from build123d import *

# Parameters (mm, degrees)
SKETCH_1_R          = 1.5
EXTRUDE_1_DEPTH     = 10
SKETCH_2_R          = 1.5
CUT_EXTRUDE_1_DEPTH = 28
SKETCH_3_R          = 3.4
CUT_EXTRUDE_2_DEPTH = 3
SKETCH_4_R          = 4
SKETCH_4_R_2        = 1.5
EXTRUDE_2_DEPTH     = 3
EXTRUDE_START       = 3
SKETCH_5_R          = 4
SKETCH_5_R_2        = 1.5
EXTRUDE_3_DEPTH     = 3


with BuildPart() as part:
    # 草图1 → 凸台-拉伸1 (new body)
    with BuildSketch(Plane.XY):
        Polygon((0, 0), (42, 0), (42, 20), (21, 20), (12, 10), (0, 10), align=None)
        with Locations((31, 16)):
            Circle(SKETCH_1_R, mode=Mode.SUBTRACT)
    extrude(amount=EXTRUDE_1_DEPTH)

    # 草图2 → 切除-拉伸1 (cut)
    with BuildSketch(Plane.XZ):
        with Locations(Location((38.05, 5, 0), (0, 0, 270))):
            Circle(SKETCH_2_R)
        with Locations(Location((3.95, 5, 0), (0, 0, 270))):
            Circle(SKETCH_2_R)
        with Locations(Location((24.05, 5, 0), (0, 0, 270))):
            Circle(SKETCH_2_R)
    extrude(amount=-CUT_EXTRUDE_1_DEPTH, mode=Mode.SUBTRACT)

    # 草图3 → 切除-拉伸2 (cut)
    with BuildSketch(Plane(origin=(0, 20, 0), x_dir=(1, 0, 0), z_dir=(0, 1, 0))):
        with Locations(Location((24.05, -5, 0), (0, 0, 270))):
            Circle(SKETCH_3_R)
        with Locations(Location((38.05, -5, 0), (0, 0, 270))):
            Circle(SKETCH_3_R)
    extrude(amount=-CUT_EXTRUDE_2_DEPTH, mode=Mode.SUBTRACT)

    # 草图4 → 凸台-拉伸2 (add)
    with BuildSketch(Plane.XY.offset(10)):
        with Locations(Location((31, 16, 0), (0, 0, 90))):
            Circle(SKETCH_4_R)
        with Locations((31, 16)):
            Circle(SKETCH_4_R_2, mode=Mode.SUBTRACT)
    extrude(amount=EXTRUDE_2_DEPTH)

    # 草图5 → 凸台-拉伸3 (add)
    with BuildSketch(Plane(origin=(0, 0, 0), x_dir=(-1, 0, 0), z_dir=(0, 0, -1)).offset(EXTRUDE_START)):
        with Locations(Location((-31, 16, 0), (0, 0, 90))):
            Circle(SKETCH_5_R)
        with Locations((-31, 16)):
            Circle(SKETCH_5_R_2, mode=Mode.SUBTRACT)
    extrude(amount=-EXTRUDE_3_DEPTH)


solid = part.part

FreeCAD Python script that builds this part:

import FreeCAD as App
import Part
import Sketcher

V = App.Vector
Q = App.Units.Quantity


def add_polygon(sketch, points):
    """Adds a closed chain of lines whose ends are joined by coincident constraints."""
    first, n = sketch.GeometryCount, len(points)
    for a, b in zip(points, points[1:] + points[:1]):
        sketch.addGeometry(Part.LineSegment(App.Vector(*a, 0), App.Vector(*b, 0)), False)
    for i in range(n):
        sketch.addConstraint(Sketcher.Constraint("Coincident", first + i, 2, first + (i + 1) % n, 1))

doc = App.newDocument("Part")
body = doc.addObject("PartDesign::Body", "Body")

sketch1 = doc.addObject("Sketcher::SketchObject", "Sketch")
body.addObject(sketch1)
sketch1.AttachmentSupport = (doc.XY_Plane, [""])
sketch1.MapMode = "FlatFace"
add_polygon(sketch1, [(0, 0), (42, 0), (42, 20), (21, 20), (12, 10), (0, 10)])
sketch1.addGeometry(Part.Circle(V(31, 16, 0), V(0, 0, 1), 1.5), False)
sketch1.addConstraint([
    Sketcher.Constraint("Horizontal", 0),
    Sketcher.Constraint("Vertical", 1),
    Sketcher.Constraint("Horizontal", 2),
    Sketcher.Constraint("Horizontal", 4),
    Sketcher.Constraint("Vertical", 5),
    Sketcher.Constraint("Coincident", 5, 2, -1, 1),
    Sketcher.Constraint("Diameter", 6, Q("3 mm")),
    Sketcher.Constraint("DistanceX", 0, 1, 0, 2, Q("42 mm")),
    Sketcher.Constraint("DistanceX", 2, 2, 2, 1, Q("21 mm")),
    Sketcher.Constraint("DistanceX", 4, 2, 4, 1, Q("12 mm")),
    Sketcher.Constraint("DistanceY", 1, 1, 1, 2, Q("20 mm")),
    Sketcher.Constraint("DistanceY", 5, 2, 5, 1, Q("10 mm")),
    Sketcher.Constraint("DistanceX", -1, 1, 6, 3, Q("31 mm")),
    Sketcher.Constraint("DistanceY", -1, 1, 6, 3, Q("16 mm")),
])
pad1 = doc.addObject("PartDesign::Pad", "Pad")
body.addObject(pad1)
pad1.Profile = sketch1
pad1.Length = 10

sketch2 = doc.addObject("Sketcher::SketchObject", "Sketch001")
body.addObject(sketch2)
sketch2.AttachmentSupport = (doc.XZ_Plane, [""])
sketch2.MapMode = "FlatFace"
sketch2.addGeometry([
    Part.Circle(V(38, 5, 0), V(0, 0, 1), 1.5),
    Part.Circle(V(4, 5, 0), V(0, 0, 1), 1.5),
    Part.Circle(V(24.1, 5, 0), V(0, 0, 1), 1.5),
], False)
sketch2.addConstraint([
    Sketcher.Constraint("Equal", 0, 1),
    Sketcher.Constraint("Equal", 1, 2),
    Sketcher.Constraint("Horizontal", 0, 3, 1, 3),
    Sketcher.Constraint("Horizontal", 1, 3, 2, 3),
    Sketcher.Constraint("Diameter", 0, Q("3 mm")),
    Sketcher.Constraint("DistanceY", -1, 1, 0, 3, Q("5 mm")),
    Sketcher.Constraint("DistanceX", 2, 3, 0, 3, Q("14 mm")),
    Sketcher.Constraint("DistanceX", 1, 3, 0, 3, Q("34.1 mm")),
    Sketcher.Constraint("DistanceX", -1, 1, 0, 3, Q("38.05 mm")),
])
pocket1 = doc.addObject("PartDesign::Pocket", "Pocket")
body.addObject(pocket1)
pocket1.Profile = sketch2
pocket1.Length = 28

sketch3 = doc.addObject("Sketcher::SketchObject", "Sketch002")
body.addObject(sketch3)
sketch3.AttachmentSupport = (doc.XZ_Plane, [""])
sketch3.MapMode = "FlatFace"
sketch3.AttachmentOffset = App.Placement(V(0, 0, -20), App.Rotation())
sketch3.addGeometry([
    Part.Circle(V(24.1, 5, 0), V(0, 0, 1), 3.4),
    Part.Circle(V(38, 5, 0), V(0, 0, 1), 3.4),
], False)
sketch3.addConstraint([
    Sketcher.Constraint("Equal", 0, 1),
    Sketcher.Constraint("Horizontal", 0, 3, 1, 3),
    Sketcher.Constraint("Diameter", 0, Q("6.8 mm")),
    Sketcher.Constraint("DistanceY", -1, 1, 0, 3, Q("5 mm")),
    Sketcher.Constraint("DistanceX", 0, 3, 1, 3, Q("14 mm")),
    Sketcher.Constraint("DistanceX", -1, 1, 0, 3, Q("24.05 mm")),
])
pocket2 = doc.addObject("PartDesign::Pocket", "Pocket001")
body.addObject(pocket2)
pocket2.Profile = sketch3
pocket2.Length = 3
pocket2.Reversed = True

sketch4 = doc.addObject("Sketcher::SketchObject", "Sketch003")
body.addObject(sketch4)
sketch4.AttachmentSupport = (doc.XY_Plane, [""])
sketch4.MapMode = "FlatFace"
sketch4.AttachmentOffset = App.Placement(V(0, 0, 10), App.Rotation())
sketch4.addGeometry([
    Part.Circle(V(31, 16, 0), V(0, 0, 1), 4),
    Part.Circle(V(31, 16, 0), V(0, 0, 1), 1.5),
], False)
sketch4.addConstraint([
    Sketcher.Constraint("Coincident", 1, 3, 0, 3),
    Sketcher.Constraint("Diameter", 0, Q("8 mm")),
    Sketcher.Constraint("Diameter", 1, Q("3 mm")),
    Sketcher.Constraint("DistanceX", -1, 1, 0, 3, Q("31 mm")),
    Sketcher.Constraint("DistanceY", -1, 1, 0, 3, Q("16 mm")),
])
pad2 = doc.addObject("PartDesign::Pad", "Pad001")
body.addObject(pad2)
pad2.Profile = sketch4
pad2.Length = 3

sketch5 = doc.addObject("Sketcher::SketchObject", "Sketch004")
body.addObject(sketch5)
sketch5.AttachmentSupport = (doc.XY_Plane, [""])
sketch5.MapMode = "FlatFace"
sketch5.AttachmentOffset = App.Placement(V(0, 0, -3), App.Rotation())
sketch5.addGeometry([
    Part.Circle(V(31, 16, 0), V(0, 0, 1), 4),
    Part.Circle(V(31, 16, 0), V(0, 0, 1), 1.5),
], False)
sketch5.addConstraint([
    Sketcher.Constraint("Coincident", 1, 3, 0, 3),
    Sketcher.Constraint("Diameter", 0, Q("8 mm")),
    Sketcher.Constraint("Diameter", 1, Q("3 mm")),
    Sketcher.Constraint("DistanceX", -1, 1, 0, 3, Q("31 mm")),
    Sketcher.Constraint("DistanceY", -1, 1, 0, 3, Q("16 mm")),
])
pad3 = doc.addObject("PartDesign::Pad", "Pad002")
body.addObject(pad3)
pad3.Profile = sketch5
pad3.Length = 3

doc.recompute()
